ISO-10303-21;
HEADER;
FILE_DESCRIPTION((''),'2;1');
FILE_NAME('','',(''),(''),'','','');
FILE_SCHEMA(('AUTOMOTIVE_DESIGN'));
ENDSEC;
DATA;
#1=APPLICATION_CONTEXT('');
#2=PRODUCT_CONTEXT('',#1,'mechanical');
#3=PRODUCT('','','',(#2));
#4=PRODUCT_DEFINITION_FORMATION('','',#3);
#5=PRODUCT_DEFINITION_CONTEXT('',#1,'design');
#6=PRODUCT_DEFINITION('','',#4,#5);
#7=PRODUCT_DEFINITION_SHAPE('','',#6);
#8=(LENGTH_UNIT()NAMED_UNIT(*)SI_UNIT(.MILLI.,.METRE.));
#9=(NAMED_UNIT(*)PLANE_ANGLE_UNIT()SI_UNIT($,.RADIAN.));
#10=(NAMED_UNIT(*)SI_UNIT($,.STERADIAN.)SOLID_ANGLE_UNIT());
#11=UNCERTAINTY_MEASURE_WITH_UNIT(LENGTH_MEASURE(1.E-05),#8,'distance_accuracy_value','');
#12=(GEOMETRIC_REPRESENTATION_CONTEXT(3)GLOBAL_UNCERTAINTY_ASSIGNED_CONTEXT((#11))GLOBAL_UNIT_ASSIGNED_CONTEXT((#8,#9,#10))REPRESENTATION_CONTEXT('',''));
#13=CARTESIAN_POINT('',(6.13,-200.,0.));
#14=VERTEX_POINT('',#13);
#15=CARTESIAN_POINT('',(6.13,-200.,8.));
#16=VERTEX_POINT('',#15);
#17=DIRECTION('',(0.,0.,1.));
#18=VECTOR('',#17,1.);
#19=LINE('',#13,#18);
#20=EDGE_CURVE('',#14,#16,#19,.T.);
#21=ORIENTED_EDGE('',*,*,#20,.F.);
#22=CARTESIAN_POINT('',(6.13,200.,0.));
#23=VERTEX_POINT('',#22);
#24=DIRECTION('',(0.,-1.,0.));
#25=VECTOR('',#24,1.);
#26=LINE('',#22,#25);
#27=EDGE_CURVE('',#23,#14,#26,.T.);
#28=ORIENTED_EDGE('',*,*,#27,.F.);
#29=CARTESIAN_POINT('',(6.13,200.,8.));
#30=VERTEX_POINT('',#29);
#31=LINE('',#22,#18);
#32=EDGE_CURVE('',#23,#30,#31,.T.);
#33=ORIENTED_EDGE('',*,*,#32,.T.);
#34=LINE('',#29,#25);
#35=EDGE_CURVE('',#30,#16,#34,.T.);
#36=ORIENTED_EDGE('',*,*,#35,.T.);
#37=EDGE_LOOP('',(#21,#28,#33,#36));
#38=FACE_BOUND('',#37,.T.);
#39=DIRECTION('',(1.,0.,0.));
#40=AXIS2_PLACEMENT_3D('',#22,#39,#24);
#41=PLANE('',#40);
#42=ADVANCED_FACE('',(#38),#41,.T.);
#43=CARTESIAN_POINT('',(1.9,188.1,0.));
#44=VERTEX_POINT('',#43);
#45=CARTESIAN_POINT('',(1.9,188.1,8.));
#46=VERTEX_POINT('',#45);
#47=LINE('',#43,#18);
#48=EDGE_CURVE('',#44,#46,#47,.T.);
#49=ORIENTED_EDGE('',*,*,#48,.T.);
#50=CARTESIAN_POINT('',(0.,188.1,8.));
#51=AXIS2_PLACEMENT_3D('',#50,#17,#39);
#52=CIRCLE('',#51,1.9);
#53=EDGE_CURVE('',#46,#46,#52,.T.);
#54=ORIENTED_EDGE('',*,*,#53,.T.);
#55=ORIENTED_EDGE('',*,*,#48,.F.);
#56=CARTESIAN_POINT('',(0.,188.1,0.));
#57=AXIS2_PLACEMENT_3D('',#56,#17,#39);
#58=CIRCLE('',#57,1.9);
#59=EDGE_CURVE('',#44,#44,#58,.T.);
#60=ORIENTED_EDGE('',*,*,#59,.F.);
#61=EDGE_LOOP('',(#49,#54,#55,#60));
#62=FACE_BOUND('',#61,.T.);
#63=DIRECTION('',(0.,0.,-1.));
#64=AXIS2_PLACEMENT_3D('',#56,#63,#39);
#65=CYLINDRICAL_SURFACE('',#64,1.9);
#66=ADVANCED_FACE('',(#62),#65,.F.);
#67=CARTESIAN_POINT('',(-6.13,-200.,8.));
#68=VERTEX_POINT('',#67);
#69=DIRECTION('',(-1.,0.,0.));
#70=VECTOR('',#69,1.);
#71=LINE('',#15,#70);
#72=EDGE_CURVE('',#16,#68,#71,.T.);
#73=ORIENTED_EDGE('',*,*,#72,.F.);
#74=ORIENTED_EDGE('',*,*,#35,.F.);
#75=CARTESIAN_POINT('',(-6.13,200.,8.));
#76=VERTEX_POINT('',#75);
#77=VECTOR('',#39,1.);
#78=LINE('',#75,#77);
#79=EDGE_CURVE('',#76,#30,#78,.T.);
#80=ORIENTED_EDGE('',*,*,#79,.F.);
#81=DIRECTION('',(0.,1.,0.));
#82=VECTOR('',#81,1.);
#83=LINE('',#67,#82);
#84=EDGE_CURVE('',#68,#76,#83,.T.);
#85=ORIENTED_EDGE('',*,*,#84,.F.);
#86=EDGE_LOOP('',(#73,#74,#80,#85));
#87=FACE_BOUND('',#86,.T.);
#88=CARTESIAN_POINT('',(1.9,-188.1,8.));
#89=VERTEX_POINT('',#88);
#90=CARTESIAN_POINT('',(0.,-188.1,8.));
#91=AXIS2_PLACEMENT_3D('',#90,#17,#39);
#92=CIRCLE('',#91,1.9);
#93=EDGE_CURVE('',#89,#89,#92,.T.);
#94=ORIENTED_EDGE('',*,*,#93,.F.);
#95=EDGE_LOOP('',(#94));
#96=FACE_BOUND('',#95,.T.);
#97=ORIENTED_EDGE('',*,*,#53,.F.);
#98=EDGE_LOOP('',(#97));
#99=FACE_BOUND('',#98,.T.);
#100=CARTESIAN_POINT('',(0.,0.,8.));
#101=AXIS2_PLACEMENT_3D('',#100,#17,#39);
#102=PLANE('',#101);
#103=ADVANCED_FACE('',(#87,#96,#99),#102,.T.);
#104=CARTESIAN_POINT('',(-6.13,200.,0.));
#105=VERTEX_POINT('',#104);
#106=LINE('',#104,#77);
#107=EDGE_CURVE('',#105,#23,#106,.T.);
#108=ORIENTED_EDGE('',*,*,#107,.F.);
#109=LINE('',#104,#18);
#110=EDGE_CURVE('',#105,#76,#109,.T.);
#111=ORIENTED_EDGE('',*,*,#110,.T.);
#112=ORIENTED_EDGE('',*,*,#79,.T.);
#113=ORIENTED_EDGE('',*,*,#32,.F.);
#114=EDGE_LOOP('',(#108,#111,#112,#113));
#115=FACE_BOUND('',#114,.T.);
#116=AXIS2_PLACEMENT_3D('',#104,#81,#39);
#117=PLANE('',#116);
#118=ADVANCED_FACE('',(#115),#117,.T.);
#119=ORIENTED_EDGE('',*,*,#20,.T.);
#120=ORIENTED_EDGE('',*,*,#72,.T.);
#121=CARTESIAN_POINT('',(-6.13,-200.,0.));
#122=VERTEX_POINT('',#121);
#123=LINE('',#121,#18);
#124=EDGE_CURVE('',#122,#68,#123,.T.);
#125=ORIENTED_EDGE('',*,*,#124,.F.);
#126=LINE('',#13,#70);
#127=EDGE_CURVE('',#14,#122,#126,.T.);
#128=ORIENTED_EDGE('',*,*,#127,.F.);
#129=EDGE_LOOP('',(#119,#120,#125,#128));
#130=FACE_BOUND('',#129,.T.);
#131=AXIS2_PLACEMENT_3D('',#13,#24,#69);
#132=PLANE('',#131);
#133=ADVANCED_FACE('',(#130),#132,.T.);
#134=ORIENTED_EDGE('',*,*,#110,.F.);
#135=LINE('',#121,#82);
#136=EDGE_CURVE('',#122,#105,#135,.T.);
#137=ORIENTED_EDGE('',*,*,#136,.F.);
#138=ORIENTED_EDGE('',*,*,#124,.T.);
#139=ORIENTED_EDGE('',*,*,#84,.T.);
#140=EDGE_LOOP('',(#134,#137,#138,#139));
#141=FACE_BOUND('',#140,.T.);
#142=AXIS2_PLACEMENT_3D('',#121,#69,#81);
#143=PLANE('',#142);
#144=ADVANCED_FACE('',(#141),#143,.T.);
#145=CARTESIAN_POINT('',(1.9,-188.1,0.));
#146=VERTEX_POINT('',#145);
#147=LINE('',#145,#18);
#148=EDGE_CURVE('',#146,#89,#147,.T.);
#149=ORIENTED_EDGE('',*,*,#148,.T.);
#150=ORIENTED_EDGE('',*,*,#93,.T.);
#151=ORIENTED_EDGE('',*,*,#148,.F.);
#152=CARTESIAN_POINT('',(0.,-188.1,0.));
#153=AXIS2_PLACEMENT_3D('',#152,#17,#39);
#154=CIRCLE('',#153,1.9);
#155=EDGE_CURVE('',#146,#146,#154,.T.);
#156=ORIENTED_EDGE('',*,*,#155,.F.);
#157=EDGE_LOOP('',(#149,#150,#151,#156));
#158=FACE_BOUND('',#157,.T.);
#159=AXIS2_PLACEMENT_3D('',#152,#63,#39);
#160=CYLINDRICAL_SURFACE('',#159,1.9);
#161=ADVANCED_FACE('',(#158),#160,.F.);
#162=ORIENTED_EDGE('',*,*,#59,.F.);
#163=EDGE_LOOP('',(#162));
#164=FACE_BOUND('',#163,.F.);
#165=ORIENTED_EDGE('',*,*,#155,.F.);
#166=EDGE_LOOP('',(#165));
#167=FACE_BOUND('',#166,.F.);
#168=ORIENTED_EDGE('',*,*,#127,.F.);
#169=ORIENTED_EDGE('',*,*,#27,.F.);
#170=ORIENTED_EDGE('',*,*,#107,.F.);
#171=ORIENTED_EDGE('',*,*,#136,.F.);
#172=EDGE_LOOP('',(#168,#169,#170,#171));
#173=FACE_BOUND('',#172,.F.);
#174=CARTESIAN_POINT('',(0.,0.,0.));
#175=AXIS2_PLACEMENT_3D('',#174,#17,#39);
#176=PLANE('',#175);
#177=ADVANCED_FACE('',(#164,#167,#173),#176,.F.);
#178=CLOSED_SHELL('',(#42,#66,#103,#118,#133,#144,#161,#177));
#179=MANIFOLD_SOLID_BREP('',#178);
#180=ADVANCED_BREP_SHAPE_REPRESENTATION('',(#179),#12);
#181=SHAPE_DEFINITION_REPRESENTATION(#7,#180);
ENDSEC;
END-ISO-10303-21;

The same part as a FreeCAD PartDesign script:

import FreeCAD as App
import Part
import Sketcher
Q = App.Units.Quantity

doc = App.newDocument("Part")
body = doc.addObject("PartDesign::Body", "Body")

sketch1 = body.newObject("Sketcher::SketchObject", "Sketch")
sketch1.AttachmentSupport = (doc.getObject("XY_Plane"), [""])
sketch1.MapMode = "FlatFace"
sketch1.addGeometry([
    Part.LineSegment(App.Vector(6.13, 200, 0), App.Vector(-6.13, 200, 0)),
    Part.LineSegment(App.Vector(-6.13, 200, 0), App.Vector(-6.13, -200, 0)),
    Part.LineSegment(App.Vector(-6.13, -200, 0), App.Vector(6.13, -200, 0)),
    Part.LineSegment(App.Vector(6.13, -200, 0), App.Vector(6.13, 200, 0)),
    Part.Circle(App.Vector(0, -188.1, 0), App.Vector(0, 0, 1), 1.9),
    Part.Circle(App.Vector(0, 188.1, 0), App.Vector(0, 0, 1), 1.9),
], False)
sketch1.addConstraint([
    Sketcher.Constraint("Coincident", 0, 2, 1, 1),
    Sketcher.Constraint("Coincident", 1, 2, 2, 1),
    Sketcher.Constraint("Coincident", 2, 2, 3, 1),
    Sketcher.Constraint("Coincident", 3, 2, 0, 1),
    Sketcher.Constraint("Horizontal", 0),
    Sketcher.Constraint("Vertical", 1),
    Sketcher.Constraint("Horizontal", 2),
    Sketcher.Constraint("Vertical", 3),
    Sketcher.Constraint("Equal", 4, 5),
    Sketcher.Constraint("Symmetric", 4, 3, 5, 3, -1, 1),
    Sketcher.Constraint("Symmetric", 0, 2, 2, 2, -1, 1),
    Sketcher.Constraint("PointOnObject", 4, 3, -2),
    Sketcher.Constraint("Diameter", 4, Q("3.8 mm")),
    Sketcher.Constraint("DistanceY", 1, 2, 1, 1, Q("400 mm")),
    Sketcher.Constraint("DistanceX", 0, 2, 0, 1, Q("12.26 mm")),
    Sketcher.Constraint("DistanceY", 5, 3, 0, 2, Q("11.9 mm")),
])
pad1 = body.newObject("PartDesign::Pad", "Pad")
pad1.Profile = sketch1
pad1.Length = 8

doc.recompute()
